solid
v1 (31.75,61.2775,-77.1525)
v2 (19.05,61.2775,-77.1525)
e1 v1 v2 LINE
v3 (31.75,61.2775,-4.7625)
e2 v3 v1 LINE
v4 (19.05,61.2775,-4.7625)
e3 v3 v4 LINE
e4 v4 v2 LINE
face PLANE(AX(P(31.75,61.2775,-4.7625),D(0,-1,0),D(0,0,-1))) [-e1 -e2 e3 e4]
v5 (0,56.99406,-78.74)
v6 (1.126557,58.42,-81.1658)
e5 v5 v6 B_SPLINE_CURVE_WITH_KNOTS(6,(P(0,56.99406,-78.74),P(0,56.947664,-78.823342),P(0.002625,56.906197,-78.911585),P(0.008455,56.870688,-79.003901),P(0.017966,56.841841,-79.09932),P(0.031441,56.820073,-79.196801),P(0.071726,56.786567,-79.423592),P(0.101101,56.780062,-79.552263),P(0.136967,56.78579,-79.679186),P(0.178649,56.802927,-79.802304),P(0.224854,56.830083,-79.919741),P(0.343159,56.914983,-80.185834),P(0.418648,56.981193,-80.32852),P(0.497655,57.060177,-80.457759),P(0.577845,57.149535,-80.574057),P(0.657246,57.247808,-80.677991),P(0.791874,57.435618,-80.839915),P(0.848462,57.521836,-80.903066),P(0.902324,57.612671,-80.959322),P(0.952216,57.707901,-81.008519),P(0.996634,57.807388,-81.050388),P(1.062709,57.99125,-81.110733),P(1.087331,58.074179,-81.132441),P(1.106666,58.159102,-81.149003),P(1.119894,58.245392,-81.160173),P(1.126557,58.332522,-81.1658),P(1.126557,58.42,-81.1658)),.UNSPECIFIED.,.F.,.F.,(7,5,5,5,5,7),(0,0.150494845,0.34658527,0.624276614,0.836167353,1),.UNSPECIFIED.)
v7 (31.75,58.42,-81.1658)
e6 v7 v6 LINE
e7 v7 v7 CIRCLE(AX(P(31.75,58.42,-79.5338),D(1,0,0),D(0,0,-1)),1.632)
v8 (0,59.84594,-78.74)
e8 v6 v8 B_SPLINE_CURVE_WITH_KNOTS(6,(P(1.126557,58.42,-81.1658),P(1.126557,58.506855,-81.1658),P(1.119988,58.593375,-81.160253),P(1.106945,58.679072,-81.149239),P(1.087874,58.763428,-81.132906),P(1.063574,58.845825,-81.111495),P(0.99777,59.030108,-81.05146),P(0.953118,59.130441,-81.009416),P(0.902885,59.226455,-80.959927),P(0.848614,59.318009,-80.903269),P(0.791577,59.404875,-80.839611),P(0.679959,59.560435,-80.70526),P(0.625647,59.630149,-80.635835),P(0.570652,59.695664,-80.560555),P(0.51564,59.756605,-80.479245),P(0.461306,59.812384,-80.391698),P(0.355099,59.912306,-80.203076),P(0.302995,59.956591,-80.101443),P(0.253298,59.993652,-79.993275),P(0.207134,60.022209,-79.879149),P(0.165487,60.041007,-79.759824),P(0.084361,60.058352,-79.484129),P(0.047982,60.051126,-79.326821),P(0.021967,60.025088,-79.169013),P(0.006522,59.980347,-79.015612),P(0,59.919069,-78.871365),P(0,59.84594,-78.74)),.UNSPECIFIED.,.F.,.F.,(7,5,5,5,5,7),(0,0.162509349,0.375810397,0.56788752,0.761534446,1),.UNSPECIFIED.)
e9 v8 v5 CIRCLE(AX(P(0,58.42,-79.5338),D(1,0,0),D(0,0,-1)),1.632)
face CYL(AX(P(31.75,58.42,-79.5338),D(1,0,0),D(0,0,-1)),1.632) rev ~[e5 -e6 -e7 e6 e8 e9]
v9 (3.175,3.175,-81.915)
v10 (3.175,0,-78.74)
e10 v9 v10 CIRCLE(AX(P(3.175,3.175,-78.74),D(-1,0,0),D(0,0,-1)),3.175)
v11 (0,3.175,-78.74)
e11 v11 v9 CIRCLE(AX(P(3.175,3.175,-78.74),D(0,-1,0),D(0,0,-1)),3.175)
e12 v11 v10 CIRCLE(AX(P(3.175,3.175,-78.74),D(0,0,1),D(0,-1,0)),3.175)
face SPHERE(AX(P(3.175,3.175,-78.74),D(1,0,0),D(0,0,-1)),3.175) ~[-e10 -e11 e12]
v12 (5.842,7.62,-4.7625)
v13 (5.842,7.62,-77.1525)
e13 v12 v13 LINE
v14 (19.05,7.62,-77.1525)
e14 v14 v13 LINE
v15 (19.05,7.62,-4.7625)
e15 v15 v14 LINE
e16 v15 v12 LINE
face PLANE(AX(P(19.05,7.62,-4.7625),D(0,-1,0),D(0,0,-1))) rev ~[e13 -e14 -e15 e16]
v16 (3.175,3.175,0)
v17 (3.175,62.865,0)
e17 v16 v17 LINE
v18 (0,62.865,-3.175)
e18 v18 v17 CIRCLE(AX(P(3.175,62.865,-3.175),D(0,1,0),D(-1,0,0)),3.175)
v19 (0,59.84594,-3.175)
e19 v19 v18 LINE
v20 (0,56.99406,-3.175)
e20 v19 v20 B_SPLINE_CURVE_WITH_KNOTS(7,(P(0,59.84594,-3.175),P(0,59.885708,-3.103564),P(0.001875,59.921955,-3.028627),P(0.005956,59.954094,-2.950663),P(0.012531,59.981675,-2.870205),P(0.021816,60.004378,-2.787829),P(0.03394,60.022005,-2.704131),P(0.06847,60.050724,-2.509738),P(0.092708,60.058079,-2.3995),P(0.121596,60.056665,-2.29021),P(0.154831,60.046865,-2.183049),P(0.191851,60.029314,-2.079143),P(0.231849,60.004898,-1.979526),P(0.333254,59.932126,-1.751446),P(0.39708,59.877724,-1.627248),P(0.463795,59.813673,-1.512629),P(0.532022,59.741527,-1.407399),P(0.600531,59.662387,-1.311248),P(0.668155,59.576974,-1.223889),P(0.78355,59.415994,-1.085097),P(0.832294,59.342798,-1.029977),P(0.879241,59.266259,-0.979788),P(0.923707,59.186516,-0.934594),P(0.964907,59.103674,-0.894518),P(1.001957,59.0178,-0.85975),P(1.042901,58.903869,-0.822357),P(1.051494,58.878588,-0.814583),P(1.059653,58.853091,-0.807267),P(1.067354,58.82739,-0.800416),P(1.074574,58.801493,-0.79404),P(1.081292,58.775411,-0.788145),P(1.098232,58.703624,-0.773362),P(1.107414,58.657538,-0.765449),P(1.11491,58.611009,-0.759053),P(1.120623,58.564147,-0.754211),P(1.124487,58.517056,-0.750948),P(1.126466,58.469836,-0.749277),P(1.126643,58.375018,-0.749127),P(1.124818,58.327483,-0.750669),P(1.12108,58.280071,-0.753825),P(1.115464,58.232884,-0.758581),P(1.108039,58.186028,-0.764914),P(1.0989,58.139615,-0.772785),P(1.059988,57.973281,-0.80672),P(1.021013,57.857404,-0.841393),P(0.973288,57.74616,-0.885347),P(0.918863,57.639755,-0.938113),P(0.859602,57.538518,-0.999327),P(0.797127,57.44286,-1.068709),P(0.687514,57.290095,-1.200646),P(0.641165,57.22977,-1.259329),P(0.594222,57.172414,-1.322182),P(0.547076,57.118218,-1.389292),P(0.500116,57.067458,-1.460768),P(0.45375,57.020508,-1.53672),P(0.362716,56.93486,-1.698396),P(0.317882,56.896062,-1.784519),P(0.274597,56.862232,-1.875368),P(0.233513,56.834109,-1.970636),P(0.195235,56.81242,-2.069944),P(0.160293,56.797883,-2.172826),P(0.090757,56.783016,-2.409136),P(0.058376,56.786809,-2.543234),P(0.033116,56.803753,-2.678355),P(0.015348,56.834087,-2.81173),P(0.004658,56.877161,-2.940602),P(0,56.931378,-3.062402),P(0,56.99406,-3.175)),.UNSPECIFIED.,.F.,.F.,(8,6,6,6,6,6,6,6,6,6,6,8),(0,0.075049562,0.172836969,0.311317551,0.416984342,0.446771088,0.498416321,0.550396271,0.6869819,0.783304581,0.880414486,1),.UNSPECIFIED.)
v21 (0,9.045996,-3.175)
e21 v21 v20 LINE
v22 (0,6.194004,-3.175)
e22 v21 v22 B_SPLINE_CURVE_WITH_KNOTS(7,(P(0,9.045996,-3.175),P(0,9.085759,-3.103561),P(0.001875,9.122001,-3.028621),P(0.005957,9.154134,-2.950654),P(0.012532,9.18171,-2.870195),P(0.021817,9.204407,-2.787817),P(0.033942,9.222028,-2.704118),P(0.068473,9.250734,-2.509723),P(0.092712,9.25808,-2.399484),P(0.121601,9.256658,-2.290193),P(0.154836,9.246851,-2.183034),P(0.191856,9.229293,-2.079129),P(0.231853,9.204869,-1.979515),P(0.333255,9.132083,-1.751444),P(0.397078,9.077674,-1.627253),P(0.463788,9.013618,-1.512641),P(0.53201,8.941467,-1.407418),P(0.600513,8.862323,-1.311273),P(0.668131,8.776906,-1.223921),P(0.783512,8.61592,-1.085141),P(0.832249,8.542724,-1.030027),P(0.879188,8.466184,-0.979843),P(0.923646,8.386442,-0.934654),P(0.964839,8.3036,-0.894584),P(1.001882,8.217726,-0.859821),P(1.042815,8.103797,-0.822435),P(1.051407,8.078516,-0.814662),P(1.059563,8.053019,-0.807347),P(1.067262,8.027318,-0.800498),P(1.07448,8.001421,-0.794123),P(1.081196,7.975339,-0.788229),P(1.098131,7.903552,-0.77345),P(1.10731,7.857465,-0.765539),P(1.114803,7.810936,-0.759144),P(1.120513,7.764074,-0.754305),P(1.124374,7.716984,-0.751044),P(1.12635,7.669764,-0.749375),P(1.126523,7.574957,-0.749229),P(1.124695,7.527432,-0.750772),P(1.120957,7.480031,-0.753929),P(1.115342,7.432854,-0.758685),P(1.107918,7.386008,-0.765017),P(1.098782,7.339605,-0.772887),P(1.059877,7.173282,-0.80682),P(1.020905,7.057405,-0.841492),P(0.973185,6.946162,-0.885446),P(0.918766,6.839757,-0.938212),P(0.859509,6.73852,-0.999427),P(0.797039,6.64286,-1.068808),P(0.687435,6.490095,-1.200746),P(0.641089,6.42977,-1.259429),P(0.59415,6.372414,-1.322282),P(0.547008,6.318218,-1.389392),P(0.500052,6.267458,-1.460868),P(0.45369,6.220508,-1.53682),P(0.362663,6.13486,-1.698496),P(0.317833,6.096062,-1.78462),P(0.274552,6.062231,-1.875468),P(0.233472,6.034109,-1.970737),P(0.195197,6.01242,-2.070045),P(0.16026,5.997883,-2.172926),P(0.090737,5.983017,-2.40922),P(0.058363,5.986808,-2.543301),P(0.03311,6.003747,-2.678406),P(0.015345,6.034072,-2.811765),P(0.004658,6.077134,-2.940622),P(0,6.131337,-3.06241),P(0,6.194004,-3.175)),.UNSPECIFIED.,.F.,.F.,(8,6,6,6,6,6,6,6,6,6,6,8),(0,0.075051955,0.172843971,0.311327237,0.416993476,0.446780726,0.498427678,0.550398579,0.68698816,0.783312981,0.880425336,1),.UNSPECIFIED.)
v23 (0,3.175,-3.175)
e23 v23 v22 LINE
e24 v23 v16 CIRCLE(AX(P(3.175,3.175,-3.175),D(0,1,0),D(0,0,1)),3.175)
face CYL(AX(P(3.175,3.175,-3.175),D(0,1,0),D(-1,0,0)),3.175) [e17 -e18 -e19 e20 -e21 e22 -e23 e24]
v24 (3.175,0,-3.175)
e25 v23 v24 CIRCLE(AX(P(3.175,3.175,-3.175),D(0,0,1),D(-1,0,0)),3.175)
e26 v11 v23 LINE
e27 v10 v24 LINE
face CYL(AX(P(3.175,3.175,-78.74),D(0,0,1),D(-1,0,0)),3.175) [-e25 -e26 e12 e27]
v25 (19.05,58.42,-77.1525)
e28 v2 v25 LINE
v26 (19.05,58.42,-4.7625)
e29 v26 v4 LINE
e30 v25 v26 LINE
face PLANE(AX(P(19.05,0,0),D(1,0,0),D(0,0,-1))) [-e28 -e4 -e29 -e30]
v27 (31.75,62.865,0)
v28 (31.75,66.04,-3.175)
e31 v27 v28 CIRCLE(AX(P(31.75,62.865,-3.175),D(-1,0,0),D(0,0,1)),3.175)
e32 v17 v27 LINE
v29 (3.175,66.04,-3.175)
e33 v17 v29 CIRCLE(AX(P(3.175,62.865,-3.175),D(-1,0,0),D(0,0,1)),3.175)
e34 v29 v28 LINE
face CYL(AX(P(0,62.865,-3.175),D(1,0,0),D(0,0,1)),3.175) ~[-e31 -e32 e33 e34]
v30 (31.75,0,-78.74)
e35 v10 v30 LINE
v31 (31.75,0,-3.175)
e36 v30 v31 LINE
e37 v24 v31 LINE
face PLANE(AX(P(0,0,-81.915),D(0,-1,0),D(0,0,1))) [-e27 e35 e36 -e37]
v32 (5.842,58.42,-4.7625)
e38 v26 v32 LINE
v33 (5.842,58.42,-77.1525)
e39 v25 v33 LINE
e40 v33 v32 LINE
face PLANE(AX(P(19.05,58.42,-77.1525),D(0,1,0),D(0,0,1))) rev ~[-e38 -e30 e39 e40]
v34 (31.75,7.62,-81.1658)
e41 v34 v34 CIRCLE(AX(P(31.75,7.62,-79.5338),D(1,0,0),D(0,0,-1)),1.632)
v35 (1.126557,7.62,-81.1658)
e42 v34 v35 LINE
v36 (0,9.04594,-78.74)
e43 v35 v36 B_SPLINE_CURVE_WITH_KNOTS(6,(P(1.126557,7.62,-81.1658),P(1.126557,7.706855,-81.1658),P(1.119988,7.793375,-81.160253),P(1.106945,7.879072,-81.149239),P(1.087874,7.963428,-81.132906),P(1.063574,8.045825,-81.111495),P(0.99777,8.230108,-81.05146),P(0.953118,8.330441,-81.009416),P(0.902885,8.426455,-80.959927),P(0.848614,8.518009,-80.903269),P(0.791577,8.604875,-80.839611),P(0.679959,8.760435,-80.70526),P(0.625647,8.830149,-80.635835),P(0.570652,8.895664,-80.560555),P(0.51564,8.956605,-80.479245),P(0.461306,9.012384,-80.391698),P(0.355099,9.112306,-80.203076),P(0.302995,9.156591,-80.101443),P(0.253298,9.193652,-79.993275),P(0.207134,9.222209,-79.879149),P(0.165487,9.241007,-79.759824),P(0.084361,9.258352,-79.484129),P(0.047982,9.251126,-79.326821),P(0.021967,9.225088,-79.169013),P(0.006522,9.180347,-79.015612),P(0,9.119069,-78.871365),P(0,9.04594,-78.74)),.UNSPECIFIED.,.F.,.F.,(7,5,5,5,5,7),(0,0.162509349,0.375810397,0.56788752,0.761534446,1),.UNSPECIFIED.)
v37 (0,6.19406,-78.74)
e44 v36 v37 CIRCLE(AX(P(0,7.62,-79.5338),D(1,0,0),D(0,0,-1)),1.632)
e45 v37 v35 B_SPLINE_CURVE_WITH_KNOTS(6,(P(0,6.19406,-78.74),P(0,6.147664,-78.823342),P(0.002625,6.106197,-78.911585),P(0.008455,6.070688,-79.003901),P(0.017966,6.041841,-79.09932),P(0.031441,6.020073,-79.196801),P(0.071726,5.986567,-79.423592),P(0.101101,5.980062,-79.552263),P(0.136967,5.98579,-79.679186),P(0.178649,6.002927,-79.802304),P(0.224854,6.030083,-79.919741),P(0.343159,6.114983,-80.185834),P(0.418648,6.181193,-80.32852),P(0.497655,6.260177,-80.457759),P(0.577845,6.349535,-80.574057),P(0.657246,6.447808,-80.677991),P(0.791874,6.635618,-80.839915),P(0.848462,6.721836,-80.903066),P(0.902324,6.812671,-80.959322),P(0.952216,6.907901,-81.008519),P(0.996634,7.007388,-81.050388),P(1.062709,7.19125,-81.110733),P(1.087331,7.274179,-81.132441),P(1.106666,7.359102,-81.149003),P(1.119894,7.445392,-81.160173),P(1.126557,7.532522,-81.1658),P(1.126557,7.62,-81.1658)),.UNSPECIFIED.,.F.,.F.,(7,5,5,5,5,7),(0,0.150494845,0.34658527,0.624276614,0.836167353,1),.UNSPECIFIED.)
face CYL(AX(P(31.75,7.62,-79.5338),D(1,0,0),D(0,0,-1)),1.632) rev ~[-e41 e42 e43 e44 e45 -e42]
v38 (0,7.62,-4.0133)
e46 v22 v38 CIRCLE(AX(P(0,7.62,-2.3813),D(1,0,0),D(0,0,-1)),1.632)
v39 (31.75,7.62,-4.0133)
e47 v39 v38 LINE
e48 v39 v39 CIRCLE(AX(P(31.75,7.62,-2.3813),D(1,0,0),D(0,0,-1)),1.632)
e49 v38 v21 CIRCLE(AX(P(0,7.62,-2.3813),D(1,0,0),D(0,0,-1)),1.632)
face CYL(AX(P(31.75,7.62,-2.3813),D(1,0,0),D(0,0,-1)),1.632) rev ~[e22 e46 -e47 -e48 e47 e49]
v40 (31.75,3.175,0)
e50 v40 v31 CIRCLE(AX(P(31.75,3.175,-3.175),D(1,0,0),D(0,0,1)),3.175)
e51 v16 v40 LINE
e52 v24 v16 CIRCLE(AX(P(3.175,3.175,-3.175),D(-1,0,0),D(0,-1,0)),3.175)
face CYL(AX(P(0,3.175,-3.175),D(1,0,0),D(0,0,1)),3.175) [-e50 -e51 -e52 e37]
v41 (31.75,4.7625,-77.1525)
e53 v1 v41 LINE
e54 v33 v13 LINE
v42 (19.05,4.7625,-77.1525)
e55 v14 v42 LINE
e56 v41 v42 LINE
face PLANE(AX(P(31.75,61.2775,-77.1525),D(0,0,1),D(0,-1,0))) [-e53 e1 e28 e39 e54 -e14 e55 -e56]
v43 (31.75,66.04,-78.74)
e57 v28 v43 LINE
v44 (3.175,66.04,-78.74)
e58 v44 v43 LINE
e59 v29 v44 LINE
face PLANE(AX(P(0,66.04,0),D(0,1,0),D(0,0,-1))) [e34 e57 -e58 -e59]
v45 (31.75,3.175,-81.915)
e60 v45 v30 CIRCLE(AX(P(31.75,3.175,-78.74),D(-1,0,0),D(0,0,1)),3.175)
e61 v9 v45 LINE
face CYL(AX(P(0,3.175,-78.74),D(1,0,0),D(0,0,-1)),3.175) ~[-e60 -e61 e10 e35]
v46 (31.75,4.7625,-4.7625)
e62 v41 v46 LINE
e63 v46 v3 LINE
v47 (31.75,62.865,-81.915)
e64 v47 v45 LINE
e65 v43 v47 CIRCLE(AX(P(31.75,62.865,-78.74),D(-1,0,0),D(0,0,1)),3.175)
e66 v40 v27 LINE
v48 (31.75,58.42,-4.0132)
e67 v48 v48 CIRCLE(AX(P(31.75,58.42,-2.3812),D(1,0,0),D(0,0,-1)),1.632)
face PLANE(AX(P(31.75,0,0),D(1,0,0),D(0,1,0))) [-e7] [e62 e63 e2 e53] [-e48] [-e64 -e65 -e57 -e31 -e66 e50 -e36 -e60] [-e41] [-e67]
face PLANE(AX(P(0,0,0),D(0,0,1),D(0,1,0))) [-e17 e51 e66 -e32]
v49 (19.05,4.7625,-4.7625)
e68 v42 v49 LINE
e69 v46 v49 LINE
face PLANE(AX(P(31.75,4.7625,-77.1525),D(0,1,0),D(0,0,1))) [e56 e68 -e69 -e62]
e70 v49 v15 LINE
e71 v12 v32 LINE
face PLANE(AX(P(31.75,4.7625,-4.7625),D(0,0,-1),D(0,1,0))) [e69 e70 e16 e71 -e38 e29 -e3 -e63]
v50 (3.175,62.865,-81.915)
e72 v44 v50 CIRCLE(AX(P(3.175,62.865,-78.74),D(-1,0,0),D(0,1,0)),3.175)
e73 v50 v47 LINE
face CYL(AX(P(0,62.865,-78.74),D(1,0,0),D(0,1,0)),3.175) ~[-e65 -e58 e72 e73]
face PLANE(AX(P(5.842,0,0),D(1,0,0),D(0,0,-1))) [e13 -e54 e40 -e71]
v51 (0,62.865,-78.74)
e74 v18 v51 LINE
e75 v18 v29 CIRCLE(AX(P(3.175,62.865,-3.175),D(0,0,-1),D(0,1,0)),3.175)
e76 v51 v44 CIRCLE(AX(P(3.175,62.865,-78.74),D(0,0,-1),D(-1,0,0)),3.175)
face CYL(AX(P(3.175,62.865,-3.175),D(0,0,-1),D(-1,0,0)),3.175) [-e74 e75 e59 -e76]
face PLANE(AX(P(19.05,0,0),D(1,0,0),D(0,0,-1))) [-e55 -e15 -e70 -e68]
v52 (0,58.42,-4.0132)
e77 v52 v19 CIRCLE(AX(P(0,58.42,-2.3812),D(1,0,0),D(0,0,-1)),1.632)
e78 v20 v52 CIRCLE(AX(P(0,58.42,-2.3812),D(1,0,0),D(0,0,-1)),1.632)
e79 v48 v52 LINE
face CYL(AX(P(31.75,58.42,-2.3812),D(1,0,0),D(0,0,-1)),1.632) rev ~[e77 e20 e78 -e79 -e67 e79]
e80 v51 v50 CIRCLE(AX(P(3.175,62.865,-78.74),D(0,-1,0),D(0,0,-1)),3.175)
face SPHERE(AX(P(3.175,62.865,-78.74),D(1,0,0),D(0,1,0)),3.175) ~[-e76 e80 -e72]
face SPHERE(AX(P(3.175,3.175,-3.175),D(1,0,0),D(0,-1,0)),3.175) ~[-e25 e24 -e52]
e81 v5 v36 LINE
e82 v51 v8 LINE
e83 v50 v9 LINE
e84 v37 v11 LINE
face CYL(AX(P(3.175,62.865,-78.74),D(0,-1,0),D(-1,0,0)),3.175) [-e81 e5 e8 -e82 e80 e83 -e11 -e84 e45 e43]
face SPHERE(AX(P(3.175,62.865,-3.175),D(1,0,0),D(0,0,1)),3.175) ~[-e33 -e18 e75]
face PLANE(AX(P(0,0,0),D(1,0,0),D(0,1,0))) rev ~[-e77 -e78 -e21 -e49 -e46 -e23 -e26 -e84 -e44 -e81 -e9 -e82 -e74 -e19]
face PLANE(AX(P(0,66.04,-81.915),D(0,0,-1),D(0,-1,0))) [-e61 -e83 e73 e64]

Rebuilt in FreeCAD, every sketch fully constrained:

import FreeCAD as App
import Part
import Sketcher
from FreeCAD import Vector
Q = App.Units.Quantity


def edges_at(feature, points):
    """Names of the edges that pass closest to the given points."""
    edges = feature.Shape.Edges
    near = lambda p: min(range(len(edges)), key=lambda i: edges[i].distToShape(Part.Vertex(*p))[0])
    return sorted({f"Edge{near(p) + 1}" for p in points})


def add_polygon(sketch, points):
    """Adds a closed chain of lines whose ends are joined by coincident constraints."""
    first, n = sketch.GeometryCount, len(points)
    for a, b in zip(points, points[1:] + points[:1]):
        sketch.addGeometry(Part.LineSegment(App.Vector(*a, 0), App.Vector(*b, 0)), False)
    for i in range(n):
        sketch.addConstraint(Sketcher.Constraint("Coincident", first + i, 2, first + (i + 1) % n, 1))

doc = App.newDocument("Part")
body = doc.addObject("PartDesign::Body", "Body")

sketch1 = body.newObject("Sketcher::SketchObject", "Sketch")
sketch1.AttachmentSupport = (doc.getObject("YZ_Plane"), [""])
sketch1.MapMode = "FlatFace"
add_polygon(sketch1, [(66, 0), (0, 0), (0, -82), (66, -82)])
sketch1.addConstraint(Sketcher.Constraint("Horizontal", 0))
sketch1.addConstraint(Sketcher.Constraint("Vertical", 1))
sketch1.addConstraint(Sketcher.Constraint("Horizontal", 2))
sketch1.addConstraint(Sketcher.Constraint("Vertical", 3))
sketch1.addConstraint(Sketcher.Constraint("Coincident", 0, 2, -1, 1))
sketch1.addConstraint(Sketcher.Constraint("DistanceX", 0, 2, 0, 1, Q("2.6 in")))
sketch1.addConstraint(Sketcher.Constraint("DistanceY", 1, 2, 1, 1, Q("3.225 in")))
pad1 = body.newObject("PartDesign::Pad", "Pad")
pad1.Profile = sketch1
pad1.Length = Q("1.25 in")
doc.recompute()

fillet = body.newObject("PartDesign::Fillet", "Fillet")
fillet.Base = (pad1, edges_at(pad1, [
    (15.875, 0, -81.915),
    (15.875, 66.04, -81.915),
    (15.875, 0, 0),
    (15.875, 66.04, 0),
]))
fillet.Radius = Q("0.125 in")

sketch2 = body.newObject("Sketcher::SketchObject", "Sketch001")
sketch2.AttachmentSupport = (doc.getObject("YZ_Plane"), [""])
sketch2.MapMode = "FlatFace"
sketch2.AttachmentOffset = App.Placement(Vector(0, 0, 1.25 * 25.4), App.Rotation())
add_polygon(sketch2, [(5, -5), (5, -77), (61, -77), (61, -5)])
sketch2.addConstraint(Sketcher.Constraint("Vertical", 0))
sketch2.addConstraint(Sketcher.Constraint("Horizontal", 1))
sketch2.addConstraint(Sketcher.Constraint("Vertical", 2))
sketch2.addConstraint(Sketcher.Constraint("Horizontal", 3))
sketch2.addConstraint(Sketcher.Constraint("DistanceY", 0, 2, 0, 1, Q("2.85 in")))
sketch2.addConstraint(Sketcher.Constraint("DistanceX", 1, 1, 1, 2, Q("2.225 in")))
sketch2.addConstraint(Sketcher.Constraint("DistanceX", -1, 1, 0, 2, Q("0.1875 in")))
sketch2.addConstraint(Sketcher.Constraint("DistanceY", 2, 2, -1, 1, Q("0.1875 in")))
pocket1 = body.newObject("PartDesign::Pocket", "Pocket")
pocket1.Profile = sketch2
pocket1.Length = Q("0.5 in")

sketch3 = body.newObject("Sketcher::SketchObject", "Sketch002")
sketch3.AttachmentSupport = (doc.getObject("YZ_Plane"), [""])
sketch3.MapMode = "FlatFace"
sketch3.AttachmentOffset = App.Placement(Vector(0, 0, 0.75 * 25.4), App.Rotation())
add_polygon(sketch3, [(8, -77), (58, -77), (58, -5), (8, -5)])
sketch3.addConstraint(Sketcher.Constraint("Horizontal", 0))
sketch3.addConstraint(Sketcher.Constraint("Vertical", 1))
sketch3.addConstraint(Sketcher.Constraint("Horizontal", 2))
sketch3.addConstraint(Sketcher.Constraint("Vertical", 3))
sketch3.addConstraint(Sketcher.Constraint("DistanceX", 0, 1, 0, 2, Q("2 in")))
sketch3.addConstraint(Sketcher.Constraint("DistanceY", 1, 1, 1, 2, Q("2.85 in")))
sketch3.addConstraint(Sketcher.Constraint("DistanceX", -1, 1, 0, 2, Q("2.3 in")))
sketch3.addConstraint(Sketcher.Constraint("DistanceY", 1, 2, -1, 1, Q("0.1875 in")))
pocket2 = body.newObject("PartDesign::Pocket", "Pocket001")
pocket2.Profile = sketch3
pocket2.Length = Q("0.52 in")
doc.recompute()

fillet2 = body.newObject("PartDesign::Fillet", "Fillet001")
fillet2.Base = (pocket2, edges_at(pocket2, [
    (0, 0.93, -80.985),
    (0, 0, -40.958),
    (0, 0.93, -0.93),
    (0, 33.02, 0),
    (0, 65.11, -0.93),
    (0, 66.04, -40.958),
    (0, 65.11, -80.985),
    (0, 33.02, -81.915),
]))
fillet2.Radius = Q("0.125 in")

sketch4 = body.newObject("Sketcher::SketchObject", "Sketch003")
sketch4.AttachmentSupport = (doc.getObject("YZ_Plane"), [""])
sketch4.MapMode = "FlatFace"
sketch4.AttachmentOffset = App.Placement(Vector(0, 0, 1.25 * 25.4), App.Rotation())
sketch4.addGeometry(Part.Circle(Vector(7.6, -2.4, 0), Vector(0, 0, 1), 1.6), False)
sketch4.addGeometry(Part.Circle(Vector(58.4, -2.4, 0), Vector(0, 0, 1), 1.6), False)
sketch4.addGeometry(Part.Circle(Vector(7.6, -79.5, 0), Vector(0, 0, 1), 1.6), False)
sketch4.addGeometry(Part.Circle(Vector(58.4, -79.5, 0), Vector(0, 0, 1), 1.6), False)
sketch4.addConstraint(Sketcher.Constraint("Equal", 0, 1))
sketch4.addConstraint(Sketcher.Constraint("Equal", 1, 2))
sketch4.addConstraint(Sketcher.Constraint("Equal", 2, 3))
sketch4.addConstraint(Sketcher.Constraint("Horizontal", 0, 3, 1, 3))
sketch4.addConstraint(Sketcher.Constraint("Horizontal", 2, 3, 3, 3))
sketch4.addConstraint(Sketcher.Constraint("Vertical", 0, 3, 2, 3))
sketch4.addConstraint(Sketcher.Constraint("Vertical", 1, 3, 3, 3))
sketch4.addConstraint(Sketcher.Constraint("Diameter", 0, Q("0.1285 in")))
sketch4.addConstraint(Sketcher.Constraint("DistanceY", 0, 3, -1, 1, Q("0.093752 in")))
sketch4.addConstraint(Sketcher.Constraint("DistanceX", 0, 3, 1, 3, Q("2 in")))
sketch4.addConstraint(Sketcher.Constraint("DistanceX", -1, 1, 0, 3, Q("0.3 in")))
sketch4.addConstraint(Sketcher.Constraint("DistanceY", 2, 3, 0, 3, Q("3.0375 in")))
pocket3 = body.newObject("PartDesign::Pocket", "Pocket002")
pocket3.Profile = sketch4
pocket3.Length = Q("1.25 in")

doc.recompute()
